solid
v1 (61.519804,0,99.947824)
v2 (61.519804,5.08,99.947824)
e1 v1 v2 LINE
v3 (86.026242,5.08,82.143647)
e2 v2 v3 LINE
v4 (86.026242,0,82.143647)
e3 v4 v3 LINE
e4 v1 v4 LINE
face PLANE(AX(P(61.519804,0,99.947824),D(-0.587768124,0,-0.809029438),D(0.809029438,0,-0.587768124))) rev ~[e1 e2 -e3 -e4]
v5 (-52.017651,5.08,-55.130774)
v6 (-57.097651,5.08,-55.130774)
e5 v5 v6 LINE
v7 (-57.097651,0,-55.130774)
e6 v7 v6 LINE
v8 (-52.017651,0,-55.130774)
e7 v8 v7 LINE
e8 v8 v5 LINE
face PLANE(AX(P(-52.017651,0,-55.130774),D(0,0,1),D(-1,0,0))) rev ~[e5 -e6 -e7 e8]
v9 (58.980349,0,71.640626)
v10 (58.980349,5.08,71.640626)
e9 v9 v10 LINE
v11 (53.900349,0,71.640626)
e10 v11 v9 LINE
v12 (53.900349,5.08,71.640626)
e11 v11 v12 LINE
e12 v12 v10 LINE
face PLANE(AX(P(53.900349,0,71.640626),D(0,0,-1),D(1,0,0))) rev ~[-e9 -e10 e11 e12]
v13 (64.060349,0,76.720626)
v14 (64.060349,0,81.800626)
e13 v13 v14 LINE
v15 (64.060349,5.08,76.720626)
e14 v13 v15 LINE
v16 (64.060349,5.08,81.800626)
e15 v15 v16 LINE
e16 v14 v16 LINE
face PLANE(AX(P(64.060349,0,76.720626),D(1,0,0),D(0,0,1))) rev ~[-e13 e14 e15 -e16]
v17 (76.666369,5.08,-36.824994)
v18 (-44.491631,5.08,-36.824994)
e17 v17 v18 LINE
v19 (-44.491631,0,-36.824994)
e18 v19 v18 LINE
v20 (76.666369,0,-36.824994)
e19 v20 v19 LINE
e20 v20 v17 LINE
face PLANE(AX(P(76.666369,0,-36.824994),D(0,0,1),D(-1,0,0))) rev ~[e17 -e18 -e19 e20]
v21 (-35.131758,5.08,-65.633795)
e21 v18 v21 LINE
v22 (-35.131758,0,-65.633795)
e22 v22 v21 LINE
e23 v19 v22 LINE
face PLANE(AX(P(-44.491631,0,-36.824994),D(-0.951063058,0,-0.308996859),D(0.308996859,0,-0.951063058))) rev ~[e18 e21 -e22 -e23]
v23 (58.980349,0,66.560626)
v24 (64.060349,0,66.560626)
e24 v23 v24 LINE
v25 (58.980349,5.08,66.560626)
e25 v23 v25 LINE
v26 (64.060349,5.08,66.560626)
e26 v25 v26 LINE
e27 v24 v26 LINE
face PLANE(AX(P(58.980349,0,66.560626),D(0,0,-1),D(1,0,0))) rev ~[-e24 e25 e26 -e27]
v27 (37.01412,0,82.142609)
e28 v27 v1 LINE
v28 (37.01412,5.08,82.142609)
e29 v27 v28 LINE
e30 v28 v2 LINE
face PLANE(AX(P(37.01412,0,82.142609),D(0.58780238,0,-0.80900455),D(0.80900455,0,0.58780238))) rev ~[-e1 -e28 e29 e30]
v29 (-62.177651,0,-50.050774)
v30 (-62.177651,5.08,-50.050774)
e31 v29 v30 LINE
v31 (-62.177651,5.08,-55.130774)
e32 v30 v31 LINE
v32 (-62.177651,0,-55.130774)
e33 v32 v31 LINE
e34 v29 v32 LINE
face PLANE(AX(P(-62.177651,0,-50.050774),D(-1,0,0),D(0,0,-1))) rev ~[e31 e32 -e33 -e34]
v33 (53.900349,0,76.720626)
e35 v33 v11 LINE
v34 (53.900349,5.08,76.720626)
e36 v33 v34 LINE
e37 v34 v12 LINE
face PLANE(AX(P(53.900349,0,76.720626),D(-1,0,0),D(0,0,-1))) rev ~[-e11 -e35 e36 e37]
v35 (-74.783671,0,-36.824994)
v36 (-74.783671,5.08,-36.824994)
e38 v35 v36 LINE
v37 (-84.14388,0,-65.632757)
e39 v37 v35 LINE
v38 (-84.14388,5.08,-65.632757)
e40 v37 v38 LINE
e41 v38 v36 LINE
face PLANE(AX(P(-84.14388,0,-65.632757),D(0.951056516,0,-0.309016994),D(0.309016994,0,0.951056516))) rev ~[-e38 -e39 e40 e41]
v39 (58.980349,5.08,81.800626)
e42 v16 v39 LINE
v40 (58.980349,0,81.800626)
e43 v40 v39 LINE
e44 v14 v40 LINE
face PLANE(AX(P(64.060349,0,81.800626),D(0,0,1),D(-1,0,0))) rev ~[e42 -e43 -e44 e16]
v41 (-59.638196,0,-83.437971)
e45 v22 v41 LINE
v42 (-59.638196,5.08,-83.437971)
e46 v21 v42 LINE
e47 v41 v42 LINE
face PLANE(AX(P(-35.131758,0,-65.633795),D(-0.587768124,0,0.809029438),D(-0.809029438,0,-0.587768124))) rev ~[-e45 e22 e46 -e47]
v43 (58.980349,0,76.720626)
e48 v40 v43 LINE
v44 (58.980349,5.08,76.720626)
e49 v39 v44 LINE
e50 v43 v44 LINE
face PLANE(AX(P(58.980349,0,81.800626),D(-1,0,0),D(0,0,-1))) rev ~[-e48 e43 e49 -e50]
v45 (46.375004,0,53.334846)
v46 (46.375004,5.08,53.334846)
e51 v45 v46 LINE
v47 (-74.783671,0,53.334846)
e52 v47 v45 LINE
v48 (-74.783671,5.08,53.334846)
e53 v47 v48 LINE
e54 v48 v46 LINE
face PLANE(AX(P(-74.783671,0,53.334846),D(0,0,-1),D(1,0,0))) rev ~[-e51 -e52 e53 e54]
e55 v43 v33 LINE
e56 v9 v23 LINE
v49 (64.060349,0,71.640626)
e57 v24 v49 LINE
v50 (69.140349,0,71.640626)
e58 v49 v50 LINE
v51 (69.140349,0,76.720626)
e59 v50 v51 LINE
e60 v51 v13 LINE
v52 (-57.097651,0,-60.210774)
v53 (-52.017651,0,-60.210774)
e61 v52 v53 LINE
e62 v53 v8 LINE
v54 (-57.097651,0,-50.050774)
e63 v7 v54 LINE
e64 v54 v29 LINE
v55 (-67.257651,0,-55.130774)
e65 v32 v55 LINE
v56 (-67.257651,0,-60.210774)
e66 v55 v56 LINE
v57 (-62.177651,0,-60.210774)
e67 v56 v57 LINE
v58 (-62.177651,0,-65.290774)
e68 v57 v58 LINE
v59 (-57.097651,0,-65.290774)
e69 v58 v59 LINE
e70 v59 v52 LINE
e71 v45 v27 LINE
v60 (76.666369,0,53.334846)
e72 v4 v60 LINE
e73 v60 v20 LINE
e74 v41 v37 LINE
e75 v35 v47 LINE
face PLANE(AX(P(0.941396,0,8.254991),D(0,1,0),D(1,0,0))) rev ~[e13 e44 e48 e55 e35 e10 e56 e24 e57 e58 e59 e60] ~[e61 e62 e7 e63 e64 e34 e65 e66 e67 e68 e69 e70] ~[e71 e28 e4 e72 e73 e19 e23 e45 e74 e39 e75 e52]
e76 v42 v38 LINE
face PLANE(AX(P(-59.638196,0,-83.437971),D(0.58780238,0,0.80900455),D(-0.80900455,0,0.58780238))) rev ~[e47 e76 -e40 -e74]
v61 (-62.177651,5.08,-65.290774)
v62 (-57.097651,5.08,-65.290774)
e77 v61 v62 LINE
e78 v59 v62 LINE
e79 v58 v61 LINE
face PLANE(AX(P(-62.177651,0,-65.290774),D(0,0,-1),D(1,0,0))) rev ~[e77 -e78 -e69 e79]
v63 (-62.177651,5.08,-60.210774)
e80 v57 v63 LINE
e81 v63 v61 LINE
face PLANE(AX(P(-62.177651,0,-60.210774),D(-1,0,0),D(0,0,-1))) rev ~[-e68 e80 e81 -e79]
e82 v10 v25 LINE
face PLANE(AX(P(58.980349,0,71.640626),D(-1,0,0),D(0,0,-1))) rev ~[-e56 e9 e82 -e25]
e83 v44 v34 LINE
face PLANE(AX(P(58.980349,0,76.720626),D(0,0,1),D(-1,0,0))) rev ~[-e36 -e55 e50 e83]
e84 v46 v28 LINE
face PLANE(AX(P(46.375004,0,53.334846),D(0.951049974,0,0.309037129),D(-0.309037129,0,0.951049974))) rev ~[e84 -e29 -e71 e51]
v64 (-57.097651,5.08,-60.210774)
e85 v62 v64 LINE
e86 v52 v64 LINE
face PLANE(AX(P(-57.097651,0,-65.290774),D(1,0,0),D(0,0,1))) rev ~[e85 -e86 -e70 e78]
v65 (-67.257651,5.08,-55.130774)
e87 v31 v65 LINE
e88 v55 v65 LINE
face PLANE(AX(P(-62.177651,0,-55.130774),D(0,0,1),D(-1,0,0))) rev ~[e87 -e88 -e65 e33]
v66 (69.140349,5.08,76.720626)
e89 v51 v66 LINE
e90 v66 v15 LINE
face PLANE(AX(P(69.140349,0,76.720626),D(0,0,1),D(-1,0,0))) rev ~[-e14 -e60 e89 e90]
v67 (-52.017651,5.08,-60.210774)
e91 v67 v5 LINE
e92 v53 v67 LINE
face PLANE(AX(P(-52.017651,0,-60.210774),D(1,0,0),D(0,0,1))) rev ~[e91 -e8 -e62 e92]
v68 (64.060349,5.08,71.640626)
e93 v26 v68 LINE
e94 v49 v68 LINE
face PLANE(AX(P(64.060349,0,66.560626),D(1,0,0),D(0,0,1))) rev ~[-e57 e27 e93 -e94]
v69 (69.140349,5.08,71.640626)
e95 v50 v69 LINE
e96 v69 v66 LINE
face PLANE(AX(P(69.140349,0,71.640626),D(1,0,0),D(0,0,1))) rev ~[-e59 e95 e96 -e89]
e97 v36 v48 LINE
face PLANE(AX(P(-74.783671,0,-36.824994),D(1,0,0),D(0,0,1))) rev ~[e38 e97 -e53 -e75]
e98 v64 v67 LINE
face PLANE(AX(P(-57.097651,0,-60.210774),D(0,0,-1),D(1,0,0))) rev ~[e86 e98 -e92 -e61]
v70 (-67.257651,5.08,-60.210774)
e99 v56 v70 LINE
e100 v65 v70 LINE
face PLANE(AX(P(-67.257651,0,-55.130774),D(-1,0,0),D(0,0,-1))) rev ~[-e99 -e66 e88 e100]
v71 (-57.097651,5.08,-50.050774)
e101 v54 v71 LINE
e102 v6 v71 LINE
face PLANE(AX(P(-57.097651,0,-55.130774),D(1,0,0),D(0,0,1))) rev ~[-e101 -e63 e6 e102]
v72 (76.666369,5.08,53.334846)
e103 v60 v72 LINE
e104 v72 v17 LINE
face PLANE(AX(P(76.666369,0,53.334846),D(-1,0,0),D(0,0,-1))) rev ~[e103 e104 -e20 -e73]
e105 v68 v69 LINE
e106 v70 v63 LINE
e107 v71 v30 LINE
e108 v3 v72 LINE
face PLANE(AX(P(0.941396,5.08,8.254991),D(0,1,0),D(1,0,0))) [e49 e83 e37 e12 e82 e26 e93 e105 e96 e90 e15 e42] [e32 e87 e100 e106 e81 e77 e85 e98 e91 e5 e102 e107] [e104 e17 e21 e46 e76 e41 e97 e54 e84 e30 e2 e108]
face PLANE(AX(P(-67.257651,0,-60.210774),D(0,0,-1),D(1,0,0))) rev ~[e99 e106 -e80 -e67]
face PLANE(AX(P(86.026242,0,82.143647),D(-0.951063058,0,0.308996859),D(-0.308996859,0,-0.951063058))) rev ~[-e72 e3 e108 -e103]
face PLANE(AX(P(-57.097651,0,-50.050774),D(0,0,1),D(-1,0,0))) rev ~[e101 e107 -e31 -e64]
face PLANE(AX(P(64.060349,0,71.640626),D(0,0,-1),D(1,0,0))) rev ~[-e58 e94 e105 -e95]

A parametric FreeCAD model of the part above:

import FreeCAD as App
import Part
import Sketcher
from FreeCAD import Vector
Q = App.Units.Quantity


def add_polygon(sketch, points):
    """Adds a closed chain of lines whose ends are joined by coincident constraints."""
    first, n = sketch.GeometryCount, len(points)
    for a, b in zip(points, points[1:] + points[:1]):
        sketch.addGeometry(Part.LineSegment(App.Vector(*a, 0), App.Vector(*b, 0)), False)
    for i in range(n):
        sketch.addConstraint(Sketcher.Constraint("Coincident", first + i, 2, first + (i + 1) % n, 1))

doc = App.newDocument("Part")
body = doc.addObject("PartDesign::Body", "Body")

# Sketch on XZ plane
sketch1 = body.newObject("Sketcher::SketchObject", "Sketch")
sketch1.AttachmentSupport = (doc.getObject("XZ_Plane"), [""])
sketch1.MapMode = "FlatFace"
add_polygon(sketch1, [(-75, -37), (-75, 53), (46, 53), (37, 82), (62, 100), (86, 82), (77, 53), (77, -37), (-44, -37), (-35, -66), (-60, -83), (-84, -66)])  # lines 0-11
add_polygon(sketch1, [(69, 72), (69, 77), (64, 77), (64, 82), (59, 82), (59, 77), (54, 77), (54, 72), (59, 72), (59, 67), (64, 67), (64, 72)])  # lines 12-23
add_polygon(sketch1, [(-62, -65), (-57, -65), (-57, -60), (-52, -60), (-52, -55), (-57, -55), (-57, -50), (-62, -50), (-62, -55), (-67, -55), (-67, -60), (-62, -60)])  # lines 24-35
sketch1.addConstraint(Sketcher.Constraint("Vertical", 0))
sketch1.addConstraint(Sketcher.Constraint("Horizontal", 1))
sketch1.addConstraint(Sketcher.Constraint("Vertical", 6))
sketch1.addConstraint(Sketcher.Constraint("Horizontal", 7))
sketch1.addConstraint(Sketcher.Constraint("Vertical", 12))
sketch1.addConstraint(Sketcher.Constraint("Horizontal", 13))
sketch1.addConstraint(Sketcher.Constraint("Vertical", 14))
sketch1.addConstraint(Sketcher.Constraint("Horizontal", 15))
sketch1.addConstraint(Sketcher.Constraint("Vertical", 16))
sketch1.addConstraint(Sketcher.Constraint("Horizontal", 17))
sketch1.addConstraint(Sketcher.Constraint("Vertical", 18))
sketch1.addConstraint(Sketcher.Constraint("Horizontal", 19))
sketch1.addConstraint(Sketcher.Constraint("Vertical", 20))
sketch1.addConstraint(Sketcher.Constraint("Horizontal", 21))
sketch1.addConstraint(Sketcher.Constraint("Vertical", 22))
sketch1.addConstraint(Sketcher.Constraint("Horizontal", 23))
sketch1.addConstraint(Sketcher.Constraint("Horizontal", 24))
sketch1.addConstraint(Sketcher.Constraint("Vertical", 25))
sketch1.addConstraint(Sketcher.Constraint("Horizontal", 26))
sketch1.addConstraint(Sketcher.Constraint("Vertical", 27))
sketch1.addConstraint(Sketcher.Constraint("Horizontal", 28))
sketch1.addConstraint(Sketcher.Constraint("Vertical", 29))
sketch1.addConstraint(Sketcher.Constraint("Horizontal", 30))
sketch1.addConstraint(Sketcher.Constraint("Vertical", 31))
sketch1.addConstraint(Sketcher.Constraint("Horizontal", 32))
sketch1.addConstraint(Sketcher.Constraint("Vertical", 33))
sketch1.addConstraint(Sketcher.Constraint("Horizontal", 34))
sketch1.addConstraint(Sketcher.Constraint("Vertical", 35))
sketch1.addConstraint(Sketcher.Constraint("Horizontal", 1, 2, 5, 2))
sketch1.addConstraint(Sketcher.Constraint("Horizontal", 7, 2, 11, 2))
sketch1.addConstraint(Sketcher.Constraint("Horizontal", 13, 2, 16, 2))
sketch1.addConstraint(Sketcher.Constraint("Horizontal", 19, 2, 22, 2))
sketch1.addConstraint(Sketcher.Constraint("Horizontal", 28, 2, 31, 2))
sketch1.addConstraint(Sketcher.Constraint("Horizontal", 26, 2, 33, 2))
sketch1.addConstraint(Sketcher.Constraint("Vertical", 16, 2, 19, 2))
sketch1.addConstraint(Sketcher.Constraint("Vertical", 14, 2, 21, 2))
sketch1.addConstraint(Sketcher.Constraint("Vertical", 25, 2, 28, 2))
sketch1.addConstraint(Sketcher.Constraint("Vertical", 31, 2, 34, 2))
sketch1.addConstraint(Sketcher.Constraint("Equal", 13, 15))
sketch1.addConstraint(Sketcher.Constraint("Equal", 15, 17))
sketch1.addConstraint(Sketcher.Constraint("Equal", 23, 24))
sketch1.addConstraint(Sketcher.Constraint("Equal", 24, 26))
sketch1.addConstraint(Sketcher.Constraint("Equal", 30, 32))
sketch1.addConstraint(Sketcher.Constraint("Equal", 34, 12))
sketch1.addConstraint(Sketcher.Constraint("Equal", 12, 14))
sketch1.addConstraint(Sketcher.Constraint("Equal", 18, 20))
sketch1.addConstraint(Sketcher.Constraint("Equal", 22, 25))
sketch1.addConstraint(Sketcher.Constraint("Equal", 25, 27))
sketch1.addConstraint(Sketcher.Constraint("Equal", 27, 29))
sketch1.addConstraint(Sketcher.Constraint("Equal", 3, 4))
sketch1.addConstraint(Sketcher.Constraint("Equal", 4, 5))
sketch1.addConstraint(Sketcher.Constraint("Equal", 5, 8))
sketch1.addConstraint(Sketcher.Constraint("Equal", 8, 9))
sketch1.addConstraint(Sketcher.Constraint("Equal", 9, 10))
sketch1.addConstraint(Sketcher.Constraint("DistanceX", 13, 2, 13, 1, Q("0.2 in")))
sketch1.addConstraint(Sketcher.Constraint("Angle", 11, Q("72 deg")))
sketch1.addConstraint(Sketcher.Constraint("DistanceX", 7, 2, 7, 1, Q("4.77 in")))
sketch1.addConstraint(Sketcher.Constraint("DistanceY", 0, 1, 0, 2, Q("3.5496 in")))
sketch1.addConstraint(Sketcher.Constraint("DistanceX", 0, 2, 5, 2, Q("5.9626 in")))
sketch1.addConstraint(Sketcher.Constraint("DistanceX", 12, 2, 5, 2, Q("0.2963 in")))
sketch1.addConstraint(Sketcher.Constraint("DistanceY", 5, 2, 12, 2, Q("0.9207 in")))
sketch1.addConstraint(Sketcher.Constraint("DistanceX", 24, 2, 7, 2, Q("0.4963 in")))
sketch1.addConstraint(Sketcher.Constraint("DistanceY", 24, 2, 7, 2, Q("1.1207 in")))
sketch1.addConstraint(Sketcher.Constraint("DistanceX", 1, 2, 3, 2, Q("15.1448 mm")))
sketch1.addConstraint(Sketcher.Constraint("DistanceY", 1, 2, 4, 2, Q("28.808801 mm")))
sketch1.addConstraint(Sketcher.Constraint("DistanceY", 8, 2, 7, 2, Q("28.808801 mm")))
sketch1.addConstraint(Sketcher.Constraint("DistanceX", 9, 2, 1, 2, Q("106.0132 mm")))
sketch1.addConstraint(Sketcher.Constraint("DistanceX", 1, 1, 1, 2, Q("121.158674 mm")))
sketch1.addConstraint(Sketcher.Constraint("DistanceX", 0, 2, -1, 1, Q("74.783671 mm")))
sketch1.addConstraint(Sketcher.Constraint("DistanceX", -1, 1, 2, 2, Q("37.01412 mm")))
sketch1.addConstraint(Sketcher.Constraint("DistanceY", -1, 1, 2, 2, Q("82.142609 mm")))
sketch1.addConstraint(Sketcher.Constraint("DistanceX", -1, 1, 4, 2, Q("86.026242 mm")))
pad1 = body.newObject("PartDesign::Pad", "Pad")
pad1.Profile = sketch1
pad1.Length = Q("0.2 in")
pad1.Reversed = True

doc.recompute()
